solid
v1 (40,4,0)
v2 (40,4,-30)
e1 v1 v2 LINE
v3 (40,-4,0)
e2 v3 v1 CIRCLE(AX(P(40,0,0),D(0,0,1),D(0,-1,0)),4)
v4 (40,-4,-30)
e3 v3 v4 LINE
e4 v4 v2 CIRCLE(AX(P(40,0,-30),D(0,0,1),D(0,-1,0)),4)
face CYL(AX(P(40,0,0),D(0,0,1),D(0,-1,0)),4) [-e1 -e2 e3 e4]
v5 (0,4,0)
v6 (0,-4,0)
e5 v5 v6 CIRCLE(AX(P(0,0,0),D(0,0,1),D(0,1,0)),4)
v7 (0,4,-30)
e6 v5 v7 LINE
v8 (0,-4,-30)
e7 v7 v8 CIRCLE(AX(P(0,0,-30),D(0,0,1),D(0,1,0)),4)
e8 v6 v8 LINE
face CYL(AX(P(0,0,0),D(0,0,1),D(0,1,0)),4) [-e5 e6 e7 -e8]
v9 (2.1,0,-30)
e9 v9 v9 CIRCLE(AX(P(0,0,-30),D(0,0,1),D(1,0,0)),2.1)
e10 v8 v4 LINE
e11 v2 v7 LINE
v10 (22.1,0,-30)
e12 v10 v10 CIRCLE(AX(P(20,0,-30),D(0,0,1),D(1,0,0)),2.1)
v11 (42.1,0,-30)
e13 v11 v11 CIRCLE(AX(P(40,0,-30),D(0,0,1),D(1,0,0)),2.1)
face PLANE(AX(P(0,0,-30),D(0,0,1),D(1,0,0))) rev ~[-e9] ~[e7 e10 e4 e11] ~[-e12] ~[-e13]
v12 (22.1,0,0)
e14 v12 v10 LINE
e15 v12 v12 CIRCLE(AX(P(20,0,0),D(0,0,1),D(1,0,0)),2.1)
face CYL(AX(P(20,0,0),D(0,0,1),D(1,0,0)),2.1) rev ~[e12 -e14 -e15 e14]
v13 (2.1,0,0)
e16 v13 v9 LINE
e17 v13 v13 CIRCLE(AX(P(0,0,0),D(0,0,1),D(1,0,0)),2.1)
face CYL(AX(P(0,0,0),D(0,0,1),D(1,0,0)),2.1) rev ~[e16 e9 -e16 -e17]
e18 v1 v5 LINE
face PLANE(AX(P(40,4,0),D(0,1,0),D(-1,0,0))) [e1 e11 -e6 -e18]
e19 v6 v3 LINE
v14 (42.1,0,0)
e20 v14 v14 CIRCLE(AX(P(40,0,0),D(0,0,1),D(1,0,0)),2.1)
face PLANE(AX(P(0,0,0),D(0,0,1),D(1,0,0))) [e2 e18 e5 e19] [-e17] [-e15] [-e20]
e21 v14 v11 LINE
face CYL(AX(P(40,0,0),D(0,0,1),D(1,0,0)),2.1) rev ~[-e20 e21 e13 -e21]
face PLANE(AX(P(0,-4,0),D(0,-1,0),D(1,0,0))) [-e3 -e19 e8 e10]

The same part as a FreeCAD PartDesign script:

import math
import FreeCAD as App
import Part
import Sketcher
Q = App.Units.Quantity

doc = App.newDocument("Part")
body = doc.addObject("PartDesign::Body", "Body")

sketch1 = body.newObject("Sketcher::SketchObject", "Sketch")
sketch1.AttachmentSupport = (doc.getObject("XY_Plane"), [""])
sketch1.MapMode = "FlatFace"
sketch1.addGeometry([
    Part.ArcOfCircle(Part.Circle(App.Vector(0, 0, 0), App.Vector(0, 0, 1), 4), math.radians(90), math.radians(270)),
    Part.LineSegment(App.Vector(0, -4, 0), App.Vector(40, -4, 0)),
    Part.ArcOfCircle(Part.Circle(App.Vector(40, 0, 0), App.Vector(0, 0, 1), 4), math.radians(-90), math.radians(90)),
    Part.LineSegment(App.Vector(40, 4, 0), App.Vector(0, 4, 0)),
    Part.Circle(App.Vector(0, 0, 0), App.Vector(0, 0, 1), 2.1),
    Part.Circle(App.Vector(20, 0, 0), App.Vector(0, 0, 1), 2.1),
    Part.Circle(App.Vector(40, 0, 0), App.Vector(0, 0, 1), 2.1),
], False)
sketch1.addConstraint([
    Sketcher.Constraint("Tangent", 0, 2, 1, 1),
    Sketcher.Constraint("Tangent", 1, 2, 2, 1),
    Sketcher.Constraint("Tangent", 2, 2, 3, 1),
    Sketcher.Constraint("Tangent", 3, 2, 0, 1),
    Sketcher.Constraint("Horizontal", 1),
    Sketcher.Constraint("Horizontal", 3),
    Sketcher.Constraint("Coincident", 0, 3, -1, 1),
    Sketcher.Constraint("Coincident", 4, 3, -1, 1),
    Sketcher.Constraint("Coincident", 6, 3, 2, 3),
    Sketcher.Constraint("Equal", 4, 5),
    Sketcher.Constraint("Equal", 5, 6),
    Sketcher.Constraint("PointOnObject", 5, 3, -1),
    Sketcher.Constraint("Radius", 0, Q("4 mm")),
    Sketcher.Constraint("Diameter", 4, Q("4.2 mm")),
    Sketcher.Constraint("DistanceX", -1, 1, 5, 3, Q("20 mm")),
    Sketcher.Constraint("DistanceX", 5, 3, 2, 3, Q("20 mm")),
])
pad1 = body.newObject("PartDesign::Pad", "Pad")
pad1.Profile = sketch1
pad1.Length = 30
pad1.Reversed = True

doc.recompute()
